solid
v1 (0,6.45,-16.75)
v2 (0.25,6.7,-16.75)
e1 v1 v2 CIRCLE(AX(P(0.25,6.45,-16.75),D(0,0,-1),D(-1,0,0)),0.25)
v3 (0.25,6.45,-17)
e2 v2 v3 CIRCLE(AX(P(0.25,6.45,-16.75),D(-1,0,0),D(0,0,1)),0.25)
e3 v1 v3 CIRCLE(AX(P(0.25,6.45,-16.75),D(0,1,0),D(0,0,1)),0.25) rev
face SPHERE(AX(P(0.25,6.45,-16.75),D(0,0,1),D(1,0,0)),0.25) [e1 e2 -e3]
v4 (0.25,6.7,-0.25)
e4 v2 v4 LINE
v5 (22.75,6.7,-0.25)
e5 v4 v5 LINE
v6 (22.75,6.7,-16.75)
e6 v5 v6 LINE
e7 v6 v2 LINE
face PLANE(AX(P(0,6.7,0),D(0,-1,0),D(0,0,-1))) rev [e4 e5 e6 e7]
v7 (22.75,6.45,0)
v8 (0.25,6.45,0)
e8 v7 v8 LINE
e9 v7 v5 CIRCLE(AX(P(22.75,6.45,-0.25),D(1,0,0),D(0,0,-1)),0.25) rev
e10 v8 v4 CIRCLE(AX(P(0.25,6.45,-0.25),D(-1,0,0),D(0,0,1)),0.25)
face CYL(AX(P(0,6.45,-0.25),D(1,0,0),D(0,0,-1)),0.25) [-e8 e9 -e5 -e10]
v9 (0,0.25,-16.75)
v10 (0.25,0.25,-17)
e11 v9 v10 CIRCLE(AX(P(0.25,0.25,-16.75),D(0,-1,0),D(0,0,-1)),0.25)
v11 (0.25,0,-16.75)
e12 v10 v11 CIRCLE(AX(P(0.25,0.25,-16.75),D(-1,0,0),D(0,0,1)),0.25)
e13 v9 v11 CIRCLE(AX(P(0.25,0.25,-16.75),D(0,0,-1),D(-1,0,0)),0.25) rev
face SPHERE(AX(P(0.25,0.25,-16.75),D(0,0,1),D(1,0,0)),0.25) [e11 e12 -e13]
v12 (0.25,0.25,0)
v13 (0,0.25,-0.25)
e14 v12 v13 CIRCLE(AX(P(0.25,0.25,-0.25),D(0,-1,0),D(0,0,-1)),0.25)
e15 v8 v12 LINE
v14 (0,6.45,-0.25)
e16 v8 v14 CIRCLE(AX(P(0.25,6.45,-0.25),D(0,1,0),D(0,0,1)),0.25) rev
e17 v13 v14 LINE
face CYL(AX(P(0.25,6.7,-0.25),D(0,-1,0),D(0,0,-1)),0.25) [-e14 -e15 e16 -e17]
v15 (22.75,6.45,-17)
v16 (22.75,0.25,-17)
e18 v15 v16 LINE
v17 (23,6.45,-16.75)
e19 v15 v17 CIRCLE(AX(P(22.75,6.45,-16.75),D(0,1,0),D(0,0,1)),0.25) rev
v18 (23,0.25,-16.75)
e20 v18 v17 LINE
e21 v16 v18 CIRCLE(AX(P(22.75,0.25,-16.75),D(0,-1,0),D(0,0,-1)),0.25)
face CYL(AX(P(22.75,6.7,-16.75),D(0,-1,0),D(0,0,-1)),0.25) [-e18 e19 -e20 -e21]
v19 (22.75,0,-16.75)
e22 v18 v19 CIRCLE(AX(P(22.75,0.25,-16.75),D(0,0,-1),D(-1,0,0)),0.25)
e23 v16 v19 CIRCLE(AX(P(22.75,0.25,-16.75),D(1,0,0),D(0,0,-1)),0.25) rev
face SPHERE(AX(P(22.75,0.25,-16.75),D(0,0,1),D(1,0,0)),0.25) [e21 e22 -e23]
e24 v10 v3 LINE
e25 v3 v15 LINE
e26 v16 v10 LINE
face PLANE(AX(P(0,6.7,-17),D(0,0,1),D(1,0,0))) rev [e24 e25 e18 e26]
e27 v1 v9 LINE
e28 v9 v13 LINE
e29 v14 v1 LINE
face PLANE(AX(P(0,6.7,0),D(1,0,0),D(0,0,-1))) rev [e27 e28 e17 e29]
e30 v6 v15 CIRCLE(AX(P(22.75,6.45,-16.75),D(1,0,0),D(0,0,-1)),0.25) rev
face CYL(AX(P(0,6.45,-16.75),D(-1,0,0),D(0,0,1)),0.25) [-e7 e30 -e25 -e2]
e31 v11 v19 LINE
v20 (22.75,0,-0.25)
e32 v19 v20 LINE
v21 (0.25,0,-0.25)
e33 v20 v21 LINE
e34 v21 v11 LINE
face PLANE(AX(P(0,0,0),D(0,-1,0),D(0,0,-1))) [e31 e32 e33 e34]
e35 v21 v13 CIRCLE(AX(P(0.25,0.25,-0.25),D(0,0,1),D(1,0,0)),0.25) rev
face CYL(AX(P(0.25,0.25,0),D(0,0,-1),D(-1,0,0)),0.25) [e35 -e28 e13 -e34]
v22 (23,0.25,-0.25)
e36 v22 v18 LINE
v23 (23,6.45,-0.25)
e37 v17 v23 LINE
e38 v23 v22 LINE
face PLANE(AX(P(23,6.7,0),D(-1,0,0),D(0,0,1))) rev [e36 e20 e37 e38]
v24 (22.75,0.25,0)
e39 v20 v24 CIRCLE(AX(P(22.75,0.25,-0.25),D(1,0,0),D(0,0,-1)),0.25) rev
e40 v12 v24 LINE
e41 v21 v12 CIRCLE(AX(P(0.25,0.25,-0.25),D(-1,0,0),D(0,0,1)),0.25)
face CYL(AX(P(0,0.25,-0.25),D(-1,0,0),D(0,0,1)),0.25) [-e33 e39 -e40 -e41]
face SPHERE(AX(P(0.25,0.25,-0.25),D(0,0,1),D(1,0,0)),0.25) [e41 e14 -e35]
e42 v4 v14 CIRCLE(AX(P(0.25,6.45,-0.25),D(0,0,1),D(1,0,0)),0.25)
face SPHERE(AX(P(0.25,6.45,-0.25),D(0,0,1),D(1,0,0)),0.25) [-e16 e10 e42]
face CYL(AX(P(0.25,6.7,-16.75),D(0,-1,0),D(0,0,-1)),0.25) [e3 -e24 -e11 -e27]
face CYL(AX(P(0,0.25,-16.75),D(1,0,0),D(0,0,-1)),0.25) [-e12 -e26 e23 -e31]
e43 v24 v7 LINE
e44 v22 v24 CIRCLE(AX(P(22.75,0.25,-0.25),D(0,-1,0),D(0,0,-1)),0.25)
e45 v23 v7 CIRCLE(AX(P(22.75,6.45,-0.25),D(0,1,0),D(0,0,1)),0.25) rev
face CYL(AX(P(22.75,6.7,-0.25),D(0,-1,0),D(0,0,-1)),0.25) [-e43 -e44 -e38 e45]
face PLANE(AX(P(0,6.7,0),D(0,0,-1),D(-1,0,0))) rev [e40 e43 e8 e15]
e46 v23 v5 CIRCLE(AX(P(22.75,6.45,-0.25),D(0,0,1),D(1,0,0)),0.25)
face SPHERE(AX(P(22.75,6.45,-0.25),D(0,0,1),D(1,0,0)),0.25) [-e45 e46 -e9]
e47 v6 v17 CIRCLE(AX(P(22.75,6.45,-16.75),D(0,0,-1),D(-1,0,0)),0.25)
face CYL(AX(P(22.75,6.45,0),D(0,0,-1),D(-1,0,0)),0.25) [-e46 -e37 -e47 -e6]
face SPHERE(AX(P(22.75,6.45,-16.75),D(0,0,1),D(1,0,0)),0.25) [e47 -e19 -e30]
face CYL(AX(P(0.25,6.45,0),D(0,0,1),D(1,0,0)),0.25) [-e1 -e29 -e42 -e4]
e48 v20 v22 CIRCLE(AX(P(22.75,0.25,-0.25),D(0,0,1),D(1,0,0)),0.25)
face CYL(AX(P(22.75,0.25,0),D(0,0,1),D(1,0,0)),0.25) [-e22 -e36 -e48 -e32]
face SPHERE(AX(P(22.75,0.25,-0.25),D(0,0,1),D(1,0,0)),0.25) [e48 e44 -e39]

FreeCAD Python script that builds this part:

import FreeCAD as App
import Part
import Sketcher
from FreeCAD import Vector
Q = App.Units.Quantity

doc = App.newDocument("Part")
body = doc.addObject("PartDesign::Body", "Body")

# Sketch on XZ plane
sketch1 = doc.addObject("Sketcher::SketchObject", "Sketch")
body.addObject(sketch1)
sketch1.AttachmentSupport = (doc.XZ_Plane, [""])
sketch1.MapMode = "FlatFace"
sketch1.addGeometry(Part.LineSegment(Vector(0, -17, 0), Vector(0, 0, 0)), False)
sketch1.addGeometry(Part.LineSegment(Vector(0, 0, 0), Vector(23, 0, 0)), False)
sketch1.addGeometry(Part.LineSegment(Vector(23, 0, 0), Vector(23, -17, 0)), False)
sketch1.addGeometry(Part.LineSegment(Vector(23, -17, 0), Vector(0, -17, 0)), False)
sketch1.addConstraint(Sketcher.Constraint("Coincident", 0, 2, 1, 1))
sketch1.addConstraint(Sketcher.Constraint("Coincident", 1, 2, 2, 1))
sketch1.addConstraint(Sketcher.Constraint("Coincident", 2, 2, 3, 1))
sketch1.addConstraint(Sketcher.Constraint("Coincident", 3, 2, 0, 1))
sketch1.addConstraint(Sketcher.Constraint("Vertical", 0))
sketch1.addConstraint(Sketcher.Constraint("Horizontal", 1))
sketch1.addConstraint(Sketcher.Constraint("Vertical", 2))
sketch1.addConstraint(Sketcher.Constraint("Horizontal", 3))
sketch1.addConstraint(Sketcher.Constraint("Coincident", 0, 2, -1, 1))
sketch1.addConstraint(Sketcher.Constraint("DistanceX", 1, 1, 1, 2, Q("23 mm")))
sketch1.addConstraint(Sketcher.Constraint("DistanceY", 0, 1, 0, 2, Q("17 mm")))
pad1 = doc.addObject("PartDesign::Pad", "Pad")
body.addObject(pad1)
pad1.Profile = sketch1
pad1.Length = 6.7
pad1.Reversed = True
doc.recompute()

fillet = doc.addObject("PartDesign::Fillet", "Fillet")
body.addObject(fillet)
fillet.Base = (pad1, ["Edge1"])
fillet.UseAllEdges = True
fillet.Radius = 0.25

doc.recompute()
